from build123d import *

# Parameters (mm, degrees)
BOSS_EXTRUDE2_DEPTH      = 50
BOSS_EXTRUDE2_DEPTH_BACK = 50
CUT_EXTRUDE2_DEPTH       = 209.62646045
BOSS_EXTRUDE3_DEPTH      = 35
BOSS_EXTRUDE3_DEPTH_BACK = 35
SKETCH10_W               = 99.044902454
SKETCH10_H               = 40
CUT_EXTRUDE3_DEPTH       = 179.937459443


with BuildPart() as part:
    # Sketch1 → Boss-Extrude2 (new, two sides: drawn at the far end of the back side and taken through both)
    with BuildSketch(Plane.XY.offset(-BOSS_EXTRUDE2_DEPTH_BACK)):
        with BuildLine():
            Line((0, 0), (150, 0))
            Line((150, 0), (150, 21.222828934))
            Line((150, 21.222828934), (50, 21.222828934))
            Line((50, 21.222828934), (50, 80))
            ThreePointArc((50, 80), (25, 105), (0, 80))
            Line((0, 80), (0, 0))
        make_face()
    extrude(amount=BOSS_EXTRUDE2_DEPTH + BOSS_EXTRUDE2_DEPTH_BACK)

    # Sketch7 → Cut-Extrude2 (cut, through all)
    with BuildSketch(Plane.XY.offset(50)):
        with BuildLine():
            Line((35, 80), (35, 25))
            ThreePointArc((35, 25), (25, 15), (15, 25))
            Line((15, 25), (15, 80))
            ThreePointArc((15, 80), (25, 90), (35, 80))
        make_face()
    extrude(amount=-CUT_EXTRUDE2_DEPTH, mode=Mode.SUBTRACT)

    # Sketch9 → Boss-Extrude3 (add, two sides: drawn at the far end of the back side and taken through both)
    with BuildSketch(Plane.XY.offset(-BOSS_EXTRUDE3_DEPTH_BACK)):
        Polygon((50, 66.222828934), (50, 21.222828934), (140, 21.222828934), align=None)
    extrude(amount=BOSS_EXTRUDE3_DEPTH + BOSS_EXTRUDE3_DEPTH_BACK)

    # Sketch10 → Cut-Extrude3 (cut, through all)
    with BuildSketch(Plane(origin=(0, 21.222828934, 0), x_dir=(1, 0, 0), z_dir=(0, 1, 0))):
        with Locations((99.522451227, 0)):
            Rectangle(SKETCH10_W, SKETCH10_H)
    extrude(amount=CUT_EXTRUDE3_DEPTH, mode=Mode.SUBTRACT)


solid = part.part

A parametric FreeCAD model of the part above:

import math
import FreeCAD as App
import Part
import Sketcher
from FreeCAD import Vector
Q = App.Units.Quantity

doc = App.newDocument("Part")
body = doc.addObject("PartDesign::Body", "Body")

sketch1 = body.newObject("Sketcher::SketchObject", "Sketch")
sketch1.AttachmentSupport = (doc.getObject("XY_Plane"), [""])
sketch1.MapMode = "FlatFace"
sketch1.addGeometry([
    Part.LineSegment(Vector(0, 0, 0), Vector(150, 0, 0)),
    Part.LineSegment(Vector(150, 0, 0), Vector(150, 21, 0)),
    Part.LineSegment(Vector(150, 21, 0), Vector(50, 21, 0)),
    Part.LineSegment(Vector(50, 21, 0), Vector(50, 80, 0)),
    Part.ArcOfCircle(Part.Circle(Vector(25, 80, 0), Vector(0, 0, 1), 25), math.radians(0), math.radians(180)),
    Part.LineSegment(Vector(0, 80, 0), Vector(0, 0, 0)),
], False)
sketch1.addConstraint([
    Sketcher.Constraint("Coincident", 0, 2, 1, 1),
    Sketcher.Constraint("Coincident", 1, 2, 2, 1),
    Sketcher.Constraint("Coincident", 2, 2, 3, 1),
    Sketcher.Constraint("Tangent", 3, 2, 4, 1),
    Sketcher.Constraint("Tangent", 4, 2, 5, 1),
    Sketcher.Constraint("Coincident", 5, 2, 0, 1),
    Sketcher.Constraint("Horizontal", 0),
    Sketcher.Constraint("Vertical", 1),
    Sketcher.Constraint("Horizontal", 2),
    Sketcher.Constraint("Vertical", 3),
    Sketcher.Constraint("Vertical", 5),
    Sketcher.Constraint("Coincident", 5, 2, -1, 1),
    Sketcher.Constraint("Radius", 4, Q("25 mm")),
    Sketcher.Constraint("DistanceX", 0, 1, 0, 2, Q("150 mm")),
    Sketcher.Constraint("DistanceY", 5, 2, 5, 1, Q("80 mm")),
    Sketcher.Constraint("DistanceY", 1, 1, 1, 2, Q("21.222829 mm")),
])
pad1 = body.newObject("PartDesign::Pad", "Pad")
pad1.Profile = sketch1
pad1.Type = "TwoLengths"
pad1.Length = 50
pad1.Length2 = 50

sketch2 = body.newObject("Sketcher::SketchObject", "Sketch001")
sketch2.AttachmentSupport = (doc.getObject("XY_Plane"), [""])
sketch2.MapMode = "FlatFace"
sketch2.AttachmentOffset = App.Placement(Vector(0, 0, 50), App.Rotation())
sketch2.addGeometry([
    Part.LineSegment(Vector(35, 25, 0), Vector(35, 80, 0)),
    Part.ArcOfCircle(Part.Circle(Vector(25, 80, 0), Vector(0, 0, 1), 10), math.radians(0), math.radians(180)),
    Part.LineSegment(Vector(15, 80, 0), Vector(15, 25, 0)),
    Part.ArcOfCircle(Part.Circle(Vector(25, 25, 0), Vector(0, 0, 1), 10), math.radians(180), math.radians(360)),
], False)
sketch2.addConstraint([
    Sketcher.Constraint("Tangent", 0, 2, 1, 1),
    Sketcher.Constraint("Tangent", 1, 2, 2, 1),
    Sketcher.Constraint("Tangent", 2, 2, 3, 1),
    Sketcher.Constraint("Tangent", 3, 2, 0, 1),
    Sketcher.Constraint("Vertical", 0),
    Sketcher.Constraint("Vertical", 2),
    Sketcher.Constraint("Radius", 1, Q("10 mm")),
    Sketcher.Constraint("DistanceY", 0, 1, 0, 2, Q("55 mm")),
    Sketcher.Constraint("DistanceX", -1, 1, 1, 3, Q("25 mm")),
    Sketcher.Constraint("DistanceY", -1, 1, 1, 3, Q("80 mm")),
])
pocket1 = body.newObject("PartDesign::Pocket", "Pocket")
pocket1.Profile = sketch2
pocket1.Type = "ThroughAll"

sketch3 = body.newObject("Sketcher::SketchObject", "Sketch002")
sketch3.AttachmentSupport = (doc.getObject("XY_Plane"), [""])
sketch3.MapMode = "FlatFace"
sketch3.addGeometry([
    Part.LineSegment(Vector(50, 66, 0), Vector(50, 21, 0)),
    Part.LineSegment(Vector(50, 21, 0), Vector(140, 21, 0)),
    Part.LineSegment(Vector(140, 21, 0), Vector(50, 66, 0)),
], False)
sketch3.addConstraint([
    Sketcher.Constraint("Coincident", 0, 2, 1, 1),
    Sketcher.Constraint("Coincident", 1, 2, 2, 1),
    Sketcher.Constraint("Coincident", 2, 2, 0, 1),
    Sketcher.Constraint("Vertical", 0),
    Sketcher.Constraint("Horizontal", 1),
    Sketcher.Constraint("DistanceX", 1, 1, 1, 2, Q("90 mm")),
    Sketcher.Constraint("DistanceY", 0, 2, 0, 1, Q("45 mm")),
    Sketcher.Constraint("DistanceX", -1, 1, 0, 2, Q("50 mm")),
    Sketcher.Constraint("DistanceY", -1, 1, 0, 2, Q("21.222829 mm")),
])
pad2 = body.newObject("PartDesign::Pad", "Pad001")
pad2.Profile = sketch3
pad2.Type = "TwoLengths"
pad2.Length = 35
pad2.Length2 = 35

sketch4 = body.newObject("Sketcher::SketchObject", "Sketch003")
sketch4.AttachmentSupport = (doc.getObject("XZ_Plane"), [""])
sketch4.MapMode = "FlatFace"
sketch4.AttachmentOffset = App.Placement(Vector(0, 0, -21.222829), App.Rotation())
sketch4.addGeometry([
    Part.LineSegment(Vector(50, -20, 0), Vector(50, 20, 0)),
    Part.LineSegment(Vector(50, 20, 0), Vector(149, 20, 0)),
    Part.LineSegment(Vector(149, 20, 0), Vector(149, -20, 0)),
    Part.LineSegment(Vector(149, -20, 0), Vector(50, -20, 0)),
], False)
sketch4.addConstraint([
    Sketcher.Constraint("Coincident", 0, 2, 1, 1),
    Sketcher.Constraint("Coincident", 1, 2, 2, 1),
    Sketcher.Constraint("Coincident", 2, 2, 3, 1),
    Sketcher.Constraint("Coincident", 3, 2, 0, 1),
    Sketcher.Constraint("Vertical", 0),
    Sketcher.Constraint("Horizontal", 1),
    Sketcher.Constraint("Vertical", 2),
    Sketcher.Constraint("Horizontal", 3),
    Sketcher.Constraint("DistanceY", 0, 1, 0, 2, Q("40 mm")),
    Sketcher.Constraint("DistanceX", -1, 1, 0, 2, Q("50 mm")),
    Sketcher.Constraint("DistanceY", -1, 1, 0, 2, Q("20 mm")),
    Sketcher.Constraint("DistanceX", 1, 1, 1, 2, Q("99.044902 mm")),
])
pocket2 = body.newObject("PartDesign::Pocket", "Pocket001")
pocket2.Profile = sketch4
pocket2.Type = "ThroughAll"

doc.recompute()
